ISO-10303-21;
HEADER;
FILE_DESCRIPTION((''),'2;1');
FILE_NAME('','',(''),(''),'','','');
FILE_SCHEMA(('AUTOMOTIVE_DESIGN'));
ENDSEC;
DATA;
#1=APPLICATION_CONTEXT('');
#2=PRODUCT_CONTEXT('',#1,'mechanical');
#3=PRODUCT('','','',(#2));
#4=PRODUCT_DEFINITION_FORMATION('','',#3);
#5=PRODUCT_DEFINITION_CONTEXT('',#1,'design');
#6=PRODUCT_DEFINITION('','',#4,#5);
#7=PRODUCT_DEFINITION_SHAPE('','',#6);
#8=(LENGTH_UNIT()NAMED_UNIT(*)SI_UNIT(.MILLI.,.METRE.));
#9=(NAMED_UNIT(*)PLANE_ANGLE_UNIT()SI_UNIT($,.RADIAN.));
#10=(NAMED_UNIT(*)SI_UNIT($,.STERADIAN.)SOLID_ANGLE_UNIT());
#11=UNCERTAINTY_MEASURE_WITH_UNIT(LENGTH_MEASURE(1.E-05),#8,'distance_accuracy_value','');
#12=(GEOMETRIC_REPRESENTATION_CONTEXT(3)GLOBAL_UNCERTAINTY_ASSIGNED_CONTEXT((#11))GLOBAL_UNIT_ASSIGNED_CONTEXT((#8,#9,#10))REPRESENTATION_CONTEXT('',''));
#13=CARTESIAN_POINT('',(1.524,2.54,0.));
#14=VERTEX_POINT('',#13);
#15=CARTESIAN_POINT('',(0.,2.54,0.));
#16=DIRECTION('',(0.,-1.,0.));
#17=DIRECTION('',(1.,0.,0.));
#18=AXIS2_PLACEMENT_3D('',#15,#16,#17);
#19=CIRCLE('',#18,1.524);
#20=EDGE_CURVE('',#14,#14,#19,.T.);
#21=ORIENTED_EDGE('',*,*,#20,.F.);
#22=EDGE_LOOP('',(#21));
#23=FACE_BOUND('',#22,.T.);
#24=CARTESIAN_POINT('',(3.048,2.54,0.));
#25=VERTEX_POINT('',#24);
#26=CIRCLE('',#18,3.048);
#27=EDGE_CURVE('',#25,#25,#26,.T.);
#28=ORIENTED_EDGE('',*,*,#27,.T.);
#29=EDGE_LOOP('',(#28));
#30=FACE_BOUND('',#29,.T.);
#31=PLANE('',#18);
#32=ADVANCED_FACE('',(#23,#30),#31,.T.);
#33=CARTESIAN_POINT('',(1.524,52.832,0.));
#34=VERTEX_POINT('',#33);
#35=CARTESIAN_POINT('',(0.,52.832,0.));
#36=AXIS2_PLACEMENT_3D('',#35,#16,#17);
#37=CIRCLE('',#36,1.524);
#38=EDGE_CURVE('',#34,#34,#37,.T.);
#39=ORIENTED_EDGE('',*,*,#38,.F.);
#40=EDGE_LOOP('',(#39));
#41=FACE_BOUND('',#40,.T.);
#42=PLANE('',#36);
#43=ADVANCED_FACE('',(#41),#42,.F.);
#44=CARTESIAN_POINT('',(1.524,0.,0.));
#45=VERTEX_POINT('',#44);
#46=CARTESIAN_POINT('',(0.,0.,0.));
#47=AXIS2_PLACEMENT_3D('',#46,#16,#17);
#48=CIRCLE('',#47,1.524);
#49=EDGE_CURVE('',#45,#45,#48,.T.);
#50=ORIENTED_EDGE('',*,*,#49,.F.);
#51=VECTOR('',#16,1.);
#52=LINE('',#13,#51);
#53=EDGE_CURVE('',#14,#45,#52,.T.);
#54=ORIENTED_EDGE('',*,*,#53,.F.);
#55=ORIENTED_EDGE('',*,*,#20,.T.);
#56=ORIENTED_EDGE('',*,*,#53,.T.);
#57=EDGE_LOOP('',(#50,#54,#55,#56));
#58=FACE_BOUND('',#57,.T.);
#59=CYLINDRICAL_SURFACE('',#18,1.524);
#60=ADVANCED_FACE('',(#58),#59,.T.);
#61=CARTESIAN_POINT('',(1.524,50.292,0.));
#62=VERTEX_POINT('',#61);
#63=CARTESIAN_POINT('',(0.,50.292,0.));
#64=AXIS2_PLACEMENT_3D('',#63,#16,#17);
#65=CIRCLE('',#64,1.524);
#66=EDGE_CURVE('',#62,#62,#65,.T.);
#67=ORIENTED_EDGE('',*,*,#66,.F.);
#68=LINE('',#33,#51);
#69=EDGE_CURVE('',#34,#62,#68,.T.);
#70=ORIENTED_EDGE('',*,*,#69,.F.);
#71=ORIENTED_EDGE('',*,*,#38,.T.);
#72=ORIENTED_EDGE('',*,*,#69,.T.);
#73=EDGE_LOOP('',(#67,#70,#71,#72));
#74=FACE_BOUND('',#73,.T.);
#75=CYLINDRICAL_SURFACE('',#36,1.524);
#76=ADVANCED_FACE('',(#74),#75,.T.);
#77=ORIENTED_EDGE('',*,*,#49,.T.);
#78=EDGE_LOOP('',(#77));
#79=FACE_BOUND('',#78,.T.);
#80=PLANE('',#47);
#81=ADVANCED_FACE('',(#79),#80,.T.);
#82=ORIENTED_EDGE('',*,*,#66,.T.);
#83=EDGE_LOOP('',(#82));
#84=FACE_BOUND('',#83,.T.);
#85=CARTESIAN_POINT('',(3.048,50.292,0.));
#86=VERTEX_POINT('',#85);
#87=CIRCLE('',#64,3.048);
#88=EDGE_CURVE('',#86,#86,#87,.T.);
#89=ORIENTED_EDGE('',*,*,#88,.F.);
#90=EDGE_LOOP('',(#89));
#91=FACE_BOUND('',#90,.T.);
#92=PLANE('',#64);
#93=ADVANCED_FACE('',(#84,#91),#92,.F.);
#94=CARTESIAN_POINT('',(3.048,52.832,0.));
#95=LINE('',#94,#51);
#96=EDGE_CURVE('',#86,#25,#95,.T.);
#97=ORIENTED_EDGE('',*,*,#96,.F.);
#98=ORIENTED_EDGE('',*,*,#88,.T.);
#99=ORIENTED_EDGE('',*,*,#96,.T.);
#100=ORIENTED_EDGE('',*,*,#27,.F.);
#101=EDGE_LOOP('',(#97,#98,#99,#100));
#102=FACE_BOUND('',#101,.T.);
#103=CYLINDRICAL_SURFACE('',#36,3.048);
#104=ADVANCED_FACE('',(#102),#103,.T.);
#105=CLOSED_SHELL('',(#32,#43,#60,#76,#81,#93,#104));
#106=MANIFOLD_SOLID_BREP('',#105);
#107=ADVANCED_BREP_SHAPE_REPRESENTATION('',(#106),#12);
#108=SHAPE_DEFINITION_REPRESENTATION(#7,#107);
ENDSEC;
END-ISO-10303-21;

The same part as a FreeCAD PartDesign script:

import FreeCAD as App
import Part
import Sketcher

V = App.Vector
Q = App.Units.Quantity


def add_polygon(sketch, points):
    """Adds a closed chain of lines whose ends are joined by coincident constraints."""
    first, n = sketch.GeometryCount, len(points)
    for a, b in zip(points, points[1:] + points[:1]):
        sketch.addGeometry(Part.LineSegment(App.Vector(*a, 0), App.Vector(*b, 0)), False)
    for i in range(n):
        sketch.addConstraint(Sketcher.Constraint("Coincident", first + i, 2, first + (i + 1) % n, 1))

doc = App.newDocument("Part")
body = doc.addObject("PartDesign::Body", "Body")

# Sketch on XY plane
sketch1 = body.newObject("Sketcher::SketchObject", "Sketch")
sketch1.AttachmentSupport = (doc.getObject("XY_Plane"), [""])
sketch1.MapMode = "FlatFace"
add_polygon(sketch1, [(0, 52.8), (0, 0), (3, 0), (3, 52.8)])  # lines 0-3
sketch1.addConstraint([
    Sketcher.Constraint("Vertical", 0),
    Sketcher.Constraint("Horizontal", 1),
    Sketcher.Constraint("Vertical", 2),
    Sketcher.Constraint("Horizontal", 3),
    Sketcher.Constraint("Coincident", 0, 2, -1, 1),
    Sketcher.Constraint("DistanceX", 1, 1, 1, 2, Q("0.12 in")),
    Sketcher.Constraint("DistanceY", 0, 2, 0, 1, Q("2.08 in")),
])
revolution = body.newObject("PartDesign::Revolution", "Revolution")
revolution.Profile = sketch1
revolution.ReferenceAxis = (sketch1, ["V_Axis"])
revolution.Angle = 360

# Sketch on XY plane
sketch2 = body.newObject("Sketcher::SketchObject", "Sketch001")
sketch2.AttachmentSupport = (doc.getObject("XY_Plane"), [""])
sketch2.MapMode = "FlatFace"
add_polygon(sketch2, [(1.5, 2.5), (1.5, 0), (3, 0), (3, 2.5)])  # lines 0-3
sketch2.addConstraint([
    Sketcher.Constraint("Vertical", 0),
    Sketcher.Constraint("Horizontal", 1),
    Sketcher.Constraint("Vertical", 2),
    Sketcher.Constraint("Horizontal", 3),
    Sketcher.Constraint("PointOnObject", 0, 2, -1),
    Sketcher.Constraint("DistanceY", 0, 2, 0, 1, Q("0.1 in")),
    Sketcher.Constraint("DistanceX", 1, 1, 1, 2, Q("0.06 in")),
    Sketcher.Constraint("DistanceX", -1, 1, 0, 2, Q("0.06 in")),
])
groove = body.newObject("PartDesign::Groove", "Groove")
groove.Profile = sketch2
groove.ReferenceAxis = (sketch2, ["V_Axis"])
groove.Angle = 360

# Sketch on XY plane
sketch3 = body.newObject("Sketcher::SketchObject", "Sketch002")
sketch3.AttachmentSupport = (doc.getObject("XY_Plane"), [""])
sketch3.MapMode = "FlatFace"
add_polygon(sketch3, [(3, 52.8), (1.5, 52.8), (1.5, 50.3), (3, 50.3)])  # lines 0-3
sketch3.addConstraint([
    Sketcher.Constraint("Horizontal", 0),
    Sketcher.Constraint("Vertical", 1),
    Sketcher.Constraint("Horizontal", 2),
    Sketcher.Constraint("Vertical", 3),
    Sketcher.Constraint("DistanceY", 1, 2, 1, 1, Q("0.1 in")),
    Sketcher.Constraint("DistanceX", 0, 2, 0, 1, Q("0.06 in")),
    Sketcher.Constraint("DistanceX", -1, 1, 0, 2, Q("0.06 in")),
    Sketcher.Constraint("DistanceY", -1, 1, 0, 2, Q("2.08 in")),
])
groove2 = body.newObject("PartDesign::Groove", "Groove001")
groove2.Profile = sketch3
groove2.ReferenceAxis = (sketch3, ["V_Axis"])
groove2.Angle = 360

doc.recompute()
